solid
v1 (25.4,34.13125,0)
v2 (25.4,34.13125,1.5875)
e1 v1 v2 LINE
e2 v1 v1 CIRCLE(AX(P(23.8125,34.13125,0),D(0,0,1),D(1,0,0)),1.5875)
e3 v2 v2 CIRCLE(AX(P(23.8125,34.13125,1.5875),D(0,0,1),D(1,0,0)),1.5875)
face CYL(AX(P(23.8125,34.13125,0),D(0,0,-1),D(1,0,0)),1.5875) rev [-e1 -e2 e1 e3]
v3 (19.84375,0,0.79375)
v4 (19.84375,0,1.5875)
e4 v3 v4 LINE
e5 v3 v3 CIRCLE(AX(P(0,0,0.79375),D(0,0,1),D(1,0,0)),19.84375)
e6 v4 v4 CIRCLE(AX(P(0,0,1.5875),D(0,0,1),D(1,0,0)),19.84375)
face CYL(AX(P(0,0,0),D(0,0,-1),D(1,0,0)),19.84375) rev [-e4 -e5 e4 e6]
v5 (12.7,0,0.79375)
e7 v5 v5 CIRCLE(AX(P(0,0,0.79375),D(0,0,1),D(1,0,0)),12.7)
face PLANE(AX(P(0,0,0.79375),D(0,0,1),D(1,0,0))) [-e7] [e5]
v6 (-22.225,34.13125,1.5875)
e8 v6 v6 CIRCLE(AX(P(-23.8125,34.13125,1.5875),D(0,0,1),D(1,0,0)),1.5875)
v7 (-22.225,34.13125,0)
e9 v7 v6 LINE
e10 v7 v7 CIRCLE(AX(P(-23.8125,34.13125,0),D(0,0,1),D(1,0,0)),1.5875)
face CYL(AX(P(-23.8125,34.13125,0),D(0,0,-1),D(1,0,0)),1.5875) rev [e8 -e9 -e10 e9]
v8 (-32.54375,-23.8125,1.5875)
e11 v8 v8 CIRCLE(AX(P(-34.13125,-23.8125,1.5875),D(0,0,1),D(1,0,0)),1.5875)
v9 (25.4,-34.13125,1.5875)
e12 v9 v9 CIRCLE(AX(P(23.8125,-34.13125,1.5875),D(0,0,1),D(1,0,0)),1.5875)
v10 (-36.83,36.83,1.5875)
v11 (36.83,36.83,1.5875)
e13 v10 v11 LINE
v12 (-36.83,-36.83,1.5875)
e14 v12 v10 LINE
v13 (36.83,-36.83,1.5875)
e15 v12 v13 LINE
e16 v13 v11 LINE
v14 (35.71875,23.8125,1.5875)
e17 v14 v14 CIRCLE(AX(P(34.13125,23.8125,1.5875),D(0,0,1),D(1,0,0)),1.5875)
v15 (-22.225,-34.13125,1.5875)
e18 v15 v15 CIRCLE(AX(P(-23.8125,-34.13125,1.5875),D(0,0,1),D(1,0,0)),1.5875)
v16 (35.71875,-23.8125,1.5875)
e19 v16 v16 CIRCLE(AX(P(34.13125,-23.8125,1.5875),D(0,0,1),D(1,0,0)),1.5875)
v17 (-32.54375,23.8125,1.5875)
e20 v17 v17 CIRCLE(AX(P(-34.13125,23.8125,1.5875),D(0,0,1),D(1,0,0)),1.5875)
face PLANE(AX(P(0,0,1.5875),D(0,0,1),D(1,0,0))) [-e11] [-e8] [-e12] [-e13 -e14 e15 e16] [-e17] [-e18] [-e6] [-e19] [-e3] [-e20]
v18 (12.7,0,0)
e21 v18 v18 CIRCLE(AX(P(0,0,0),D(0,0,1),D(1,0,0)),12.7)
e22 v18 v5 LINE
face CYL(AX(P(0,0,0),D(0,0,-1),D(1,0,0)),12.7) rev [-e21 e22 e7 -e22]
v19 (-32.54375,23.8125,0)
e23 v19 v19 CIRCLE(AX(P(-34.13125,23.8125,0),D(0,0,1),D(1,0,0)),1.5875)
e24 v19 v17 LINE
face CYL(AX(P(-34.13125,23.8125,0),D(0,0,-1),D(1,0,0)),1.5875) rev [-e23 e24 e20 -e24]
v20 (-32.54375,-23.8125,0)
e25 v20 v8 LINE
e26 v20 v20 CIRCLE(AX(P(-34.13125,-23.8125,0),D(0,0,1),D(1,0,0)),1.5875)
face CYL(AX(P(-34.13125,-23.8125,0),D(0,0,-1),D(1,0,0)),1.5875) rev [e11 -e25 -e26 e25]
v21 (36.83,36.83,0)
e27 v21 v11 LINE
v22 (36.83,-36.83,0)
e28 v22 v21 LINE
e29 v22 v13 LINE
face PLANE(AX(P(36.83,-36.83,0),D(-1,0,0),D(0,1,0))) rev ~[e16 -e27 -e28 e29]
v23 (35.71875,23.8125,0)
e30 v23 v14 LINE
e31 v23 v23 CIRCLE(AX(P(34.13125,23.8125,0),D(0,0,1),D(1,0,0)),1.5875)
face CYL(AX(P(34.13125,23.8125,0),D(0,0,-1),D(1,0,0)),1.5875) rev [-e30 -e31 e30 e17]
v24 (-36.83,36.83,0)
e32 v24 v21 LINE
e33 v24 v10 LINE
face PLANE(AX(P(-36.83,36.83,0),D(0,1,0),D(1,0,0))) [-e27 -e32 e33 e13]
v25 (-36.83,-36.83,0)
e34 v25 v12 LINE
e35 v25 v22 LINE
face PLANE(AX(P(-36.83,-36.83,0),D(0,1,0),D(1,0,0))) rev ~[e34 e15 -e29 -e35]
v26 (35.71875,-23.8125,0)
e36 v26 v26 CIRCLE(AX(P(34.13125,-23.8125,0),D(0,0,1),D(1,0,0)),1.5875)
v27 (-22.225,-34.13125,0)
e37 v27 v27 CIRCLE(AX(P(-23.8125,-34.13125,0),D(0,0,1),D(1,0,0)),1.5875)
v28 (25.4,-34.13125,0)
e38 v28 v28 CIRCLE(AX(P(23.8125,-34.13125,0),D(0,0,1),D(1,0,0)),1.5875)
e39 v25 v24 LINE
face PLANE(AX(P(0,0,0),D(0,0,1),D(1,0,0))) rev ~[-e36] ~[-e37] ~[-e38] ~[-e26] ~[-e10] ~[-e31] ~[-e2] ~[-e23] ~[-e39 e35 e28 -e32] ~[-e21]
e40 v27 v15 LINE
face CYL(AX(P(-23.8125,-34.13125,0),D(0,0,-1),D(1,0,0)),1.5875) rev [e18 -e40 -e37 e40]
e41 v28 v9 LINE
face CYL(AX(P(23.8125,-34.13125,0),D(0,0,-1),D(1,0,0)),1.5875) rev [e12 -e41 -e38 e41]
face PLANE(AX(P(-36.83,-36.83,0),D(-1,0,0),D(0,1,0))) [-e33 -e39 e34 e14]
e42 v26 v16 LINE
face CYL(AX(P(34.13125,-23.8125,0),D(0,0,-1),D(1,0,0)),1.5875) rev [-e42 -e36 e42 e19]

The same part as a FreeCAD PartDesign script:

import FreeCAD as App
import Part
import Sketcher
Q = App.Units.Quantity

doc = App.newDocument("Part")
body = doc.addObject("PartDesign::Body", "Body")

# Sketch on XY plane
sketch1 = doc.addObject("Sketcher::SketchObject", "Sketch")
body.addObject(sketch1)
sketch1.AttachmentSupport = (doc.XY_Plane, [""])
sketch1.MapMode = "FlatFace"
sketch1.addGeometry([
    Part.Circle(App.Vector(0, 0, 0), App.Vector(0, 0, 1), 19.84375),
    Part.Circle(App.Vector(0, 0, 0), App.Vector(0, 0, 1), 12.7),
], False)
sketch1.addConstraint([
    Sketcher.Constraint("Coincident", 0, 3, -1, 1),
    Sketcher.Constraint("Coincident", 1, 3, -1, 1),
    Sketcher.Constraint("Diameter", 1, Q("1 in")),
    Sketcher.Constraint("Diameter", 0, Q("1.5625 in")),
])
pad1 = doc.addObject("PartDesign::Pad", "Pad")
body.addObject(pad1)
pad1.Profile = sketch1
pad1.Length = Q("0.03125 in")

# Sketch on XY plane
sketch2 = doc.addObject("Sketcher::SketchObject", "Sketch001")
body.addObject(sketch2)
sketch2.AttachmentSupport = (doc.XY_Plane, [""])
sketch2.MapMode = "FlatFace"
sketch2.addGeometry([
    Part.LineSegment(App.Vector(-36.83, 36.83, 0), App.Vector(-36.83, -36.83, 0)),  # 0
    Part.LineSegment(App.Vector(-36.83, -36.83, 0), App.Vector(36.83, -36.83, 0)),  # 1
    Part.LineSegment(App.Vector(36.83, -36.83, 0), App.Vector(36.83, 36.83, 0)),  # 2
    Part.LineSegment(App.Vector(36.83, 36.83, 0), App.Vector(-36.83, 36.83, 0)),  # 3
    Part.Circle(App.Vector(-23.8125, -34.13125, 0), App.Vector(0, 0, 1), 1.5875),  # 4
    Part.Circle(App.Vector(-34.13125, -23.8125, 0), App.Vector(0, 0, 1), 1.5875),  # 5
    Part.Circle(App.Vector(23.8125, -34.13125, 0), App.Vector(0, 0, 1), 1.5875),  # 6
    Part.Circle(App.Vector(34.13125, -23.8125, 0), App.Vector(0, 0, 1), 1.5875),  # 7
    Part.Circle(App.Vector(-34.13125, 23.8125, 0), App.Vector(0, 0, 1), 1.5875),  # 8
    Part.Circle(App.Vector(-23.8125, 34.13125, 0), App.Vector(0, 0, 1), 1.5875),  # 9
    Part.Circle(App.Vector(0, 0, 0), App.Vector(0, 0, 1), 19.84375),  # 10
    Part.Circle(App.Vector(34.13125, 23.8125, 0), App.Vector(0, 0, 1), 1.5875),  # 11
    Part.Circle(App.Vector(23.8125, 34.13125, 0), App.Vector(0, 0, 1), 1.5875),  # 12
], False)
sketch2.addConstraint([
    Sketcher.Constraint("Coincident", 0, 2, 1, 1),
    Sketcher.Constraint("Coincident", 1, 2, 2, 1),
    Sketcher.Constraint("Coincident", 2, 2, 3, 1),
    Sketcher.Constraint("Coincident", 3, 2, 0, 1),
    Sketcher.Constraint("Vertical", 0),
    Sketcher.Constraint("Horizontal", 1),
    Sketcher.Constraint("Vertical", 2),
    Sketcher.Constraint("Horizontal", 3),
    Sketcher.Constraint("Coincident", 10, 3, -1, 1),
    Sketcher.Constraint("Equal", 4, 5),
    Sketcher.Constraint("Equal", 5, 6),
    Sketcher.Constraint("Equal", 6, 7),
    Sketcher.Constraint("Equal", 7, 8),
    Sketcher.Constraint("Equal", 8, 9),
    Sketcher.Constraint("Equal", 9, 11),
    Sketcher.Constraint("Equal", 11, 12),
    Sketcher.Constraint("Symmetric", 7, 3, 8, 3, -1, 1),
    Sketcher.Constraint("Symmetric", 6, 3, 9, 3, -1, 1),
    Sketcher.Constraint("Symmetric", 5, 3, 11, 3, -1, 1),
    Sketcher.Constraint("Symmetric", 4, 3, 12, 3, -1, 1),
    Sketcher.Constraint("Symmetric", 0, 2, 2, 2, -1, 1),
    Sketcher.Constraint("Symmetric", 4, 3, 6, 3, -2),
    Sketcher.Constraint("Symmetric", 5, 3, 7, 3, -2),
    Sketcher.Constraint("Equal", 3, 0),
    Sketcher.Constraint("Diameter", 4, Q("0.125 in")),
    Sketcher.Constraint("Diameter", 10, Q("1.5625 in")),
    Sketcher.Constraint("DistanceX", 1, 1, 1, 2, Q("2.9 in")),
    Sketcher.Constraint("DistanceX", 4, 3, -1, 1, Q("0.9375 in")),
    Sketcher.Constraint("DistanceY", 4, 3, -1, 1, Q("1.34375 in")),
    Sketcher.Constraint("DistanceX", 5, 3, -1, 1, Q("1.34375 in")),
    Sketcher.Constraint("DistanceY", 5, 3, -1, 1, Q("0.9375 in")),
])
pad2 = doc.addObject("PartDesign::Pad", "Pad001")
body.addObject(pad2)
pad2.Profile = sketch2
pad2.Length = Q("0.0625 in")

doc.recompute()
